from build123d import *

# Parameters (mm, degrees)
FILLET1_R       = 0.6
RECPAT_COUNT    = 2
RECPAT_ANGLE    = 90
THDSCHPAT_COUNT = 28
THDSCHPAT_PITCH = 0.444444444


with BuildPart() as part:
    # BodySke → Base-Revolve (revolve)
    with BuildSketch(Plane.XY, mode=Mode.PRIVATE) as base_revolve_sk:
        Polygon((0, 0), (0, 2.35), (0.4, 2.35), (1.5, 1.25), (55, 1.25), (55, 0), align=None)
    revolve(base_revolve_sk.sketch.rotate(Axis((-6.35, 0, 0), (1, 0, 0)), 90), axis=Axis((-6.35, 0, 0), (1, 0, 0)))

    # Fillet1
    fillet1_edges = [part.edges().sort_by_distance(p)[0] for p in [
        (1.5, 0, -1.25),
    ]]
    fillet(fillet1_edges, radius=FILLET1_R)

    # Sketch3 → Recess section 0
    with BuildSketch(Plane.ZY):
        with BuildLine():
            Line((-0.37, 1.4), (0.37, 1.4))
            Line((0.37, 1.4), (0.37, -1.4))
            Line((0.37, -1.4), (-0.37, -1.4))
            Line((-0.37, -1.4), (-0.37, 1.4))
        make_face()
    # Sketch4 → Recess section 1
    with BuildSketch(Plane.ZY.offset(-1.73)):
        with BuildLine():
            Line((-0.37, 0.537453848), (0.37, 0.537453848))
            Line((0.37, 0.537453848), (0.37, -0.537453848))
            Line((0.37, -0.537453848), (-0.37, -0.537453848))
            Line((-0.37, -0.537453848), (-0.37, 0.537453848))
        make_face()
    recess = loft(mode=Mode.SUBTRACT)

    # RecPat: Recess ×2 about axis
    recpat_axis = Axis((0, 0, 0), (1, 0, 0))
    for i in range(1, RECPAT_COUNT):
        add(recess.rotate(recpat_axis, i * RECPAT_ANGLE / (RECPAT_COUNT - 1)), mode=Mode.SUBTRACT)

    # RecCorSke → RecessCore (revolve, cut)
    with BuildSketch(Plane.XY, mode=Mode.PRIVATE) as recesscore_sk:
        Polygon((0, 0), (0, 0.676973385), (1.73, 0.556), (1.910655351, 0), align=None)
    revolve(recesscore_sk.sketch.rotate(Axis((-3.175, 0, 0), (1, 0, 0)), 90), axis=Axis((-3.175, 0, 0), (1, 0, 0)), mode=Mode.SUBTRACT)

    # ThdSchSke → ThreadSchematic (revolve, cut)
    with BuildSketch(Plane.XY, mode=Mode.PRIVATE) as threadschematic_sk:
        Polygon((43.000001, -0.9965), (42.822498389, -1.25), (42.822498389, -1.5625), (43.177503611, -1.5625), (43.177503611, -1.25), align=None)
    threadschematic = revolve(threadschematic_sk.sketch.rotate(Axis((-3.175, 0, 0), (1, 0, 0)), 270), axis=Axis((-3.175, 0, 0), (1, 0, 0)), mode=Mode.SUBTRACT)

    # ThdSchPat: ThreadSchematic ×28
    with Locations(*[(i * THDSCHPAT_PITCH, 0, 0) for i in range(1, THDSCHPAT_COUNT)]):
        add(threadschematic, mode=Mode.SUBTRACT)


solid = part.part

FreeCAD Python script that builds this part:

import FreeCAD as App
import Part
import Sketcher

V = App.Vector
Q = App.Units.Quantity


def edges_at(feature, points):
    """Names of the edges that pass closest to the given points."""
    edges = feature.Shape.Edges
    near = lambda p: min(range(len(edges)), key=lambda i: edges[i].distToShape(Part.Vertex(*p))[0])
    return sorted({f"Edge{near(p) + 1}" for p in points})


def add_polygon(sketch, points):
    """Adds a closed chain of lines whose ends are joined by coincident constraints."""
    first, n = sketch.GeometryCount, len(points)
    for a, b in zip(points, points[1:] + points[:1]):
        sketch.addGeometry(Part.LineSegment(App.Vector(*a, 0), App.Vector(*b, 0)), False)
    for i in range(n):
        sketch.addConstraint(Sketcher.Constraint("Coincident", first + i, 2, first + (i + 1) % n, 1))

doc = App.newDocument("Part")
body = doc.addObject("PartDesign::Body", "Body")

# Sketch on XY plane
sketch1 = doc.addObject("Sketcher::SketchObject", "Sketch")
body.addObject(sketch1)
sketch1.AttachmentSupport = (doc.XY_Plane, [""])
sketch1.MapMode = "FlatFace"
add_polygon(sketch1, [(0, 2.35), (0, 0), (55, 0), (55, 1.25), (1.5, 1.25), (0.4, 2.35)])  # lines 0-5
sketch1.addConstraint(Sketcher.Constraint("Vertical", 0))
sketch1.addConstraint(Sketcher.Constraint("Horizontal", 1))
sketch1.addConstraint(Sketcher.Constraint("Vertical", 2))
sketch1.addConstraint(Sketcher.Constraint("Horizontal", 3))
sketch1.addConstraint(Sketcher.Constraint("Horizontal", 5))
sketch1.addConstraint(Sketcher.Constraint("Coincident", 0, 2, -1, 1))
sketch1.addConstraint(Sketcher.Constraint("DistanceX", 1, 1, 1, 2, 55.0))
sketch1.addConstraint(Sketcher.Constraint("Angle", 4, Q("135 deg")))
sketch1.addConstraint(Sketcher.Constraint("DistanceX", 3, 2, 3, 1, 53.5))
sketch1.addConstraint(Sketcher.Constraint("DistanceX", 5, 2, 5, 1, 0.4))
sketch1.addConstraint(Sketcher.Constraint("DistanceY", 0, 2, 0, 1, 2.35))
revolution = doc.addObject("PartDesign::Revolution", "Revolution")
body.addObject(revolution)
revolution.Profile = sketch1
revolution.ReferenceAxis = (sketch1, ["H_Axis"])
revolution.Angle = 360
doc.recompute()

fillet = doc.addObject("PartDesign::Fillet", "Fillet")
body.addObject(fillet)
fillet.Base = (revolution, edges_at(revolution, [(1.5, 0, -1.25)]))
fillet.Radius = 0.6

# Sketch on YZ plane
sketch2 = doc.addObject("Sketcher::SketchObject", "Sketch001")
body.addObject(sketch2)
sketch2.AttachmentSupport = (doc.YZ_Plane, [""])
sketch2.MapMode = "FlatFace"
add_polygon(sketch2, [(1.4, 0.4), (1.4, -0.4), (-1.4, -0.4), (-1.4, 0.4)])  # lines 0-3
sketch2.addConstraint(Sketcher.Constraint("Vertical", 0))
sketch2.addConstraint(Sketcher.Constraint("Horizontal", 1))
sketch2.addConstraint(Sketcher.Constraint("Vertical", 2))
sketch2.addConstraint(Sketcher.Constraint("Horizontal", 3))
sketch2.addConstraint(Sketcher.Constraint("Symmetric", 0, 2, 2, 2, -1, 1))
sketch2.addConstraint(Sketcher.Constraint("DistanceX", 1, 2, 1, 1, 2.8))
sketch2.addConstraint(Sketcher.Constraint("DistanceY", 0, 2, 0, 1, 0.74))

# Sketch on YZ plane
sketch3 = doc.addObject("Sketcher::SketchObject", "Sketch002")
body.addObject(sketch3)
sketch3.AttachmentSupport = (doc.YZ_Plane, [""])
sketch3.MapMode = "FlatFace"
sketch3.AttachmentOffset = App.Placement(V(0, 0, 1.73), App.Rotation())
add_polygon(sketch3, [(0.5, 0.4), (0.5, -0.4), (-0.5, -0.4), (-0.5, 0.4)])  # lines 0-3
sketch3.addConstraint(Sketcher.Constraint("Vertical", 0))
sketch3.addConstraint(Sketcher.Constraint("Horizontal", 1))
sketch3.addConstraint(Sketcher.Constraint("Vertical", 2))
sketch3.addConstraint(Sketcher.Constraint("Horizontal", 3))
sketch3.addConstraint(Sketcher.Constraint("Symmetric", 0, 2, 2, 2, -1, 1))
sketch3.addConstraint(Sketcher.Constraint("DistanceY", 0, 2, 0, 1, 0.74))
sketch3.addConstraint(Sketcher.Constraint("DistanceX", 1, 2, 1, 1, 1.074908))

subtractiveloft = doc.addObject("PartDesign::SubtractiveLoft", "SubtractiveLoft")
body.addObject(subtractiveloft)
subtractiveloft.Profile = sketch2
subtractiveloft.Sections = [sketch3]
doc.recompute()

polarpattern = doc.addObject("PartDesign::PolarPattern", "PolarPattern")
body.addObject(polarpattern)
polarpattern.Originals = [subtractiveloft]
polarpattern.Axis = (doc.X_Axis, [""])
polarpattern.Angle = 90
polarpattern.Occurrences = 2
body.Tip = polarpattern

# Sketch on XY plane
sketch4 = doc.addObject("Sketcher::SketchObject", "Sketch003")
body.addObject(sketch4)
sketch4.AttachmentSupport = (doc.XY_Plane, [""])
sketch4.MapMode = "FlatFace"
add_polygon(sketch4, [(0, 0.7), (0, 0), (1.9, 0), (1.7, 0.6)])  # lines 0-3
sketch4.addConstraint(Sketcher.Constraint("Vertical", 0))
sketch4.addConstraint(Sketcher.Constraint("Horizontal", 1))
sketch4.addConstraint(Sketcher.Constraint("Coincident", 0, 2, -1, 1))
sketch4.addConstraint(Sketcher.Constraint("Angle", 2, Q("108 deg")))
sketch4.addConstraint(Sketcher.Constraint("Angle", 3, Q("176 deg")))
sketch4.addConstraint(Sketcher.Constraint("DistanceX", -1, 1, 2, 2, 1.73))
sketch4.addConstraint(Sketcher.Constraint("DistanceY", -1, 1, 2, 2, 0.556))
groove = doc.addObject("PartDesign::Groove", "Groove")
body.addObject(groove)
groove.Profile = sketch4
groove.ReferenceAxis = (sketch4, ["H_Axis"])
groove.Angle = 360

# Sketch on XY plane
sketch5 = doc.addObject("Sketcher::SketchObject", "Sketch004")
body.addObject(sketch5)
sketch5.AttachmentSupport = (doc.XY_Plane, [""])
sketch5.MapMode = "FlatFace"
add_polygon(sketch5, [(43, -1), (42.82, -1.25), (42.82, -1.56), (43.18, -1.56), (43.18, -1.25)])  # lines 0-4
sketch5.addConstraint(Sketcher.Constraint("Vertical", 1))
sketch5.addConstraint(Sketcher.Constraint("Horizontal", 2))
sketch5.addConstraint(Sketcher.Constraint("Vertical", 3))
sketch5.addConstraint(Sketcher.Constraint("Horizontal", 0, 2, 3, 2))
sketch5.addConstraint(Sketcher.Constraint("Equal", 0, 4))
sketch5.addConstraint(Sketcher.Constraint("Angle", 0, Q("-125 deg")))
sketch5.addConstraint(Sketcher.Constraint("DistanceX", -1, 1, 4, 2, 43.000001))
sketch5.addConstraint(Sketcher.Constraint("DistanceY", 0, 2, -1, 1, 1.25))
sketch5.addConstraint(Sketcher.Constraint("DistanceY", 1, 2, 1, 1, 0.3125))
sketch5.addConstraint(Sketcher.Constraint("DistanceY", 1, 2, 4, 2, 0.566))
groove2 = doc.addObject("PartDesign::Groove", "Groove001")
body.addObject(groove2)
groove2.Profile = sketch5
groove2.ReferenceAxis = (sketch5, ["H_Axis"])
groove2.Angle = 360
doc.recompute()

linearpattern = doc.addObject("PartDesign::LinearPattern", "LinearPattern")
body.addObject(linearpattern)
linearpattern.Originals = [groove2]
linearpattern.Direction = (doc.X_Axis, [""])
linearpattern.Mode = "offset"
linearpattern.Offset = 0.444444
linearpattern.Occurrences = 28
body.Tip = linearpattern

doc.recompute()
